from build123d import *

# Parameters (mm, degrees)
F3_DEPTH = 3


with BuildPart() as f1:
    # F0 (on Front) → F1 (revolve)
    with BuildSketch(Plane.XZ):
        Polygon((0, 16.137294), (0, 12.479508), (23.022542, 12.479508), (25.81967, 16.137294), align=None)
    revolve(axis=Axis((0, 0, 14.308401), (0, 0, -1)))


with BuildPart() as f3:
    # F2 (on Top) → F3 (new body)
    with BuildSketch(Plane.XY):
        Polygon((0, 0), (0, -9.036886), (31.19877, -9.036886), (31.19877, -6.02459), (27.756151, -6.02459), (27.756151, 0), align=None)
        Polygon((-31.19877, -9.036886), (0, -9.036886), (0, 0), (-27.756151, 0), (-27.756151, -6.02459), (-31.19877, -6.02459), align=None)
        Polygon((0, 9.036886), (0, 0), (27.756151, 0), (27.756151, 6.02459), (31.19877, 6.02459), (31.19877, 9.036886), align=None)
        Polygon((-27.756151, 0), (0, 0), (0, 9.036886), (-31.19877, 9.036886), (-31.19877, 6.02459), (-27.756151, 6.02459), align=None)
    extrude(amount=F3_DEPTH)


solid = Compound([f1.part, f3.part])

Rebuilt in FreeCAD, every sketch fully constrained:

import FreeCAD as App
import Part
import Sketcher

V = App.Vector


def add_polygon(sketch, points):
    """Adds a closed chain of lines whose ends are joined by coincident constraints."""
    first, n = sketch.GeometryCount, len(points)
    for a, b in zip(points, points[1:] + points[:1]):
        sketch.addGeometry(Part.LineSegment(App.Vector(*a, 0), App.Vector(*b, 0)), False)
    for i in range(n):
        sketch.addConstraint(Sketcher.Constraint("Coincident", first + i, 2, first + (i + 1) % n, 1))

doc = App.newDocument("Part")
body = doc.addObject("PartDesign::Body", "Body")

# Sketch on XZ plane
sketch1 = body.newObject("Sketcher::SketchObject", "Sketch")
sketch1.AttachmentSupport = (doc.getObject("XZ_Plane"), [""])
sketch1.MapMode = "FlatFace"
add_polygon(sketch1, [(0, 16.1), (0, 12.5), (23, 12.5), (25.8, 16.1)])  # lines 0-3
sketch1.addConstraint([
    Sketcher.Constraint("Vertical", 0),
    Sketcher.Constraint("Horizontal", 1),
    Sketcher.Constraint("Horizontal", 3),
    Sketcher.Constraint("PointOnObject", 0, 2, -2),
    Sketcher.Constraint("DistanceX", 3, 2, 3, 1, 25.81967),
    Sketcher.Constraint("DistanceX", 1, 1, 1, 2, 23.022542),
    Sketcher.Constraint("DistanceY", 0, 2, 0, 1, 3.657786),
    Sketcher.Constraint("DistanceY", -1, 1, 0, 2, 12.479508),
])
revolution = body.newObject("PartDesign::Revolution", "Revolution")
revolution.Profile = sketch1
revolution.ReferenceAxis = (sketch1, ["V_Axis"])
revolution.Angle = 360
body2 = doc.addObject("PartDesign::Body", "Body001")

# Sketch on XY plane
sketch2 = body2.newObject("Sketcher::SketchObject", "Sketch001")
sketch2.AttachmentSupport = (doc.getObject("XY_Plane001"), [""])
sketch2.MapMode = "FlatFace"
add_polygon(sketch2, [(31.2, -9), (31.2, -6), (27.8, -6), (27.8, 6), (31.2, 6), (31.2, 9), (-31.2, 9), (-31.2, 6), (-27.8, 6), (-27.8, -6), (-31.2, -6), (-31.2, -9)])  # lines 0-11
sketch2.addConstraint([
    Sketcher.Constraint("Vertical", 0),
    Sketcher.Constraint("Horizontal", 1),
    Sketcher.Constraint("Vertical", 2),
    Sketcher.Constraint("Horizontal", 3),
    Sketcher.Constraint("Vertical", 4),
    Sketcher.Constraint("Horizontal", 5),
    Sketcher.Constraint("Vertical", 6),
    Sketcher.Constraint("Horizontal", 7),
    Sketcher.Constraint("Vertical", 8),
    Sketcher.Constraint("Horizontal", 9),
    Sketcher.Constraint("Vertical", 10),
    Sketcher.Constraint("Horizontal", 11),
    Sketcher.Constraint("Symmetric", 0, 2, 6, 2, -1, 1),
    Sketcher.Constraint("Symmetric", 2, 2, 8, 2, -1, 1),
    Sketcher.Constraint("Symmetric", 4, 2, 10, 2, -1, 1),
    Sketcher.Constraint("Symmetric", 3, 2, 6, 2, -2),
    Sketcher.Constraint("DistanceX", 1, 2, 1, 1, 3.442619),
    Sketcher.Constraint("DistanceX", 5, 2, 5, 1, 62.39754),
    Sketcher.Constraint("DistanceY", 2, 1, 2, 2, 12.04918),
    Sketcher.Constraint("DistanceY", 0, 1, 0, 2, 3.012296),
])
pad1 = body2.newObject("PartDesign::Pad", "Pad")
pad1.Profile = sketch2
pad1.Length = 3

doc.recompute()
